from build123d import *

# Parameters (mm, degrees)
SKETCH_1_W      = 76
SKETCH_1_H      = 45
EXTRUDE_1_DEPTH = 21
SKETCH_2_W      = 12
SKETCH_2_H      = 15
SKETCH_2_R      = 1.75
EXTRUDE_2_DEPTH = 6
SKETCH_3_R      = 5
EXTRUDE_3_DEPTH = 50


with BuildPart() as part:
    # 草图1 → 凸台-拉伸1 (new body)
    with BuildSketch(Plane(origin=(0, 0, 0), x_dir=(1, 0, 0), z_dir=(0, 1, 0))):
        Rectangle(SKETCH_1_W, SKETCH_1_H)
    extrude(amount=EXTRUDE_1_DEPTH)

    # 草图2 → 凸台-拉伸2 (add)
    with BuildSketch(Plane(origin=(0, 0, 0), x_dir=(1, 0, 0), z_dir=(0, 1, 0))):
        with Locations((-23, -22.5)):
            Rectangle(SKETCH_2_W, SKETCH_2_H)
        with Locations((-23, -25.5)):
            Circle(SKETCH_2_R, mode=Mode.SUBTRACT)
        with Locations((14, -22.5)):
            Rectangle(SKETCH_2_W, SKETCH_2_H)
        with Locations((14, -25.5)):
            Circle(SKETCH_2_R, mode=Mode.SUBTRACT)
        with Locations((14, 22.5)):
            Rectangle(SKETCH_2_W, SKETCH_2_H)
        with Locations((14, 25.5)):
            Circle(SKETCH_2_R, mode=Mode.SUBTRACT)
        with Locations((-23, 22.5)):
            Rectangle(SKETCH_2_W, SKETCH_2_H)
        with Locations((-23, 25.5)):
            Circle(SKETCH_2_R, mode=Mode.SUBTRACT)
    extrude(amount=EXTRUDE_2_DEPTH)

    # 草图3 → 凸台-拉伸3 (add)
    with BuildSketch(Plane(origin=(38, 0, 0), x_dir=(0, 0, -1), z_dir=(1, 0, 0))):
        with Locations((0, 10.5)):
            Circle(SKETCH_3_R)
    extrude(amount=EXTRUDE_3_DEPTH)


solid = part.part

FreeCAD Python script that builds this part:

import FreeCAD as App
import Part
import Sketcher
from FreeCAD import Vector
Q = App.Units.Quantity


def add_polygon(sketch, points):
    """Adds a closed chain of lines whose ends are joined by coincident constraints."""
    first, n = sketch.GeometryCount, len(points)
    for a, b in zip(points, points[1:] + points[:1]):
        sketch.addGeometry(Part.LineSegment(App.Vector(*a, 0), App.Vector(*b, 0)), False)
    for i in range(n):
        sketch.addConstraint(Sketcher.Constraint("Coincident", first + i, 2, first + (i + 1) % n, 1))

doc = App.newDocument("Part")
body = doc.addObject("PartDesign::Body", "Body")

# Sketch on XZ plane
sketch1 = body.newObject("Sketcher::SketchObject", "Sketch")
sketch1.AttachmentSupport = (doc.getObject("XZ_Plane"), [""])
sketch1.MapMode = "FlatFace"
add_polygon(sketch1, [(-38, -22), (-38, 22), (38, 22), (38, -22)])  # lines 0-3
sketch1.addConstraint(Sketcher.Constraint("Vertical", 0))
sketch1.addConstraint(Sketcher.Constraint("Horizontal", 1))
sketch1.addConstraint(Sketcher.Constraint("Vertical", 2))
sketch1.addConstraint(Sketcher.Constraint("Horizontal", 3))
sketch1.addConstraint(Sketcher.Constraint("Symmetric", 0, 2, 2, 2, -1, 1))
sketch1.addConstraint(Sketcher.Constraint("DistanceX", 1, 1, 1, 2, Q("76 mm")))
sketch1.addConstraint(Sketcher.Constraint("DistanceY", 0, 1, 0, 2, Q("45 mm")))
pad1 = body.newObject("PartDesign::Pad", "Pad")
pad1.Profile = sketch1
pad1.Length = 21
pad1.Reversed = True

# Sketch on XZ plane
sketch2 = body.newObject("Sketcher::SketchObject", "Sketch001")
sketch2.AttachmentSupport = (doc.getObject("XZ_Plane"), [""])
sketch2.MapMode = "FlatFace"
add_polygon(sketch2, [(-29, 15), (-29, 30), (-17, 30), (-17, 15)])  # lines 0-3
sketch2.addGeometry(Part.Circle(Vector(-23, 25.5, 0), Vector(0, 0, 1), 1.8), False)  # 4
add_polygon(sketch2, [(8, 15), (8, 30), (20, 30), (20, 15)])  # lines 5-8
sketch2.addGeometry(Part.Circle(Vector(14, 25.5, 0), Vector(0, 0, 1), 1.8), False)  # 9
add_polygon(sketch2, [(8, -30), (8, -15), (20, -15), (20, -30)])  # lines 10-13
sketch2.addGeometry(Part.Circle(Vector(14, -25.5, 0), Vector(0, 0, 1), 1.8), False)  # 14
add_polygon(sketch2, [(-29, -30), (-29, -15), (-17, -15), (-17, -30)])  # lines 15-18
sketch2.addGeometry(Part.Circle(Vector(-23, -25.5, 0), Vector(0, 0, 1), 1.8), False)  # 19
sketch2.addConstraint(Sketcher.Constraint("Vertical", 0))
sketch2.addConstraint(Sketcher.Constraint("Horizontal", 1))
sketch2.addConstraint(Sketcher.Constraint("Vertical", 2))
sketch2.addConstraint(Sketcher.Constraint("Horizontal", 3))
sketch2.addConstraint(Sketcher.Constraint("Vertical", 5))
sketch2.addConstraint(Sketcher.Constraint("Horizontal", 6))
sketch2.addConstraint(Sketcher.Constraint("Vertical", 7))
sketch2.addConstraint(Sketcher.Constraint("Horizontal", 8))
sketch2.addConstraint(Sketcher.Constraint("Vertical", 10))
sketch2.addConstraint(Sketcher.Constraint("Horizontal", 11))
sketch2.addConstraint(Sketcher.Constraint("Vertical", 12))
sketch2.addConstraint(Sketcher.Constraint("Horizontal", 13))
sketch2.addConstraint(Sketcher.Constraint("Vertical", 15))
sketch2.addConstraint(Sketcher.Constraint("Horizontal", 16))
sketch2.addConstraint(Sketcher.Constraint("Vertical", 17))
sketch2.addConstraint(Sketcher.Constraint("Horizontal", 18))
sketch2.addConstraint(Sketcher.Constraint("Equal", 4, 9))
sketch2.addConstraint(Sketcher.Constraint("Equal", 9, 14))
sketch2.addConstraint(Sketcher.Constraint("Equal", 14, 19))
sketch2.addConstraint(Sketcher.Constraint("Symmetric", 9, 3, 14, 3, -1))
sketch2.addConstraint(Sketcher.Constraint("Symmetric", 4, 3, 19, 3, -1))
sketch2.addConstraint(Sketcher.Constraint("Symmetric", 8, 2, 10, 2, -1))
sketch2.addConstraint(Sketcher.Constraint("Symmetric", 6, 2, 12, 2, -1))
sketch2.addConstraint(Sketcher.Constraint("Symmetric", 3, 2, 15, 2, -1))
sketch2.addConstraint(Sketcher.Constraint("Symmetric", 1, 2, 17, 2, -1))
sketch2.addConstraint(Sketcher.Constraint("Horizontal", 4, 3, 9, 3))
sketch2.addConstraint(Sketcher.Constraint("Horizontal", 1, 2, 5, 2))
sketch2.addConstraint(Sketcher.Constraint("Horizontal", 3, 2, 7, 2))
sketch2.addConstraint(Sketcher.Constraint("Equal", 3, 6))
sketch2.addConstraint(Sketcher.Constraint("Diameter", 4, Q("3.5 mm")))
sketch2.addConstraint(Sketcher.Constraint("DistanceX", 1, 1, 1, 2, Q("12 mm")))
sketch2.addConstraint(Sketcher.Constraint("DistanceY", 0, 1, 0, 2, Q("15 mm")))
sketch2.addConstraint(Sketcher.Constraint("DistanceX", 4, 3, -1, 1, Q("23 mm")))
sketch2.addConstraint(Sketcher.Constraint("DistanceX", -1, 1, 9, 3, Q("14 mm")))
sketch2.addConstraint(Sketcher.Constraint("DistanceX", 0, 2, -1, 1, Q("29 mm")))
sketch2.addConstraint(Sketcher.Constraint("DistanceY", -1, 1, 0, 2, Q("30 mm")))
sketch2.addConstraint(Sketcher.Constraint("DistanceX", -1, 1, 5, 2, Q("8 mm")))
sketch2.addConstraint(Sketcher.Constraint("DistanceY", 14, 3, 9, 3, Q("51 mm")))
pad2 = body.newObject("PartDesign::Pad", "Pad001")
pad2.Profile = sketch2
pad2.Length = 6
pad2.Reversed = True

# Sketch on YZ plane
sketch3 = body.newObject("Sketcher::SketchObject", "Sketch002")
sketch3.AttachmentSupport = (doc.getObject("YZ_Plane"), [""])
sketch3.MapMode = "FlatFace"
sketch3.AttachmentOffset = App.Placement(Vector(0, 0, 38), App.Rotation())
sketch3.addGeometry(Part.Circle(Vector(10, 0, 0), Vector(0, 0, 1), 5), False)
sketch3.addConstraint(Sketcher.Constraint("PointOnObject", 0, 3, -1))
sketch3.addConstraint(Sketcher.Constraint("Diameter", 0, Q("10 mm")))
sketch3.addConstraint(Sketcher.Constraint("DistanceX", -1, 1, 0, 3, Q("10.5 mm")))
pad3 = body.newObject("PartDesign::Pad", "Pad002")
pad3.Profile = sketch3
pad3.Length = 50

doc.recompute()
